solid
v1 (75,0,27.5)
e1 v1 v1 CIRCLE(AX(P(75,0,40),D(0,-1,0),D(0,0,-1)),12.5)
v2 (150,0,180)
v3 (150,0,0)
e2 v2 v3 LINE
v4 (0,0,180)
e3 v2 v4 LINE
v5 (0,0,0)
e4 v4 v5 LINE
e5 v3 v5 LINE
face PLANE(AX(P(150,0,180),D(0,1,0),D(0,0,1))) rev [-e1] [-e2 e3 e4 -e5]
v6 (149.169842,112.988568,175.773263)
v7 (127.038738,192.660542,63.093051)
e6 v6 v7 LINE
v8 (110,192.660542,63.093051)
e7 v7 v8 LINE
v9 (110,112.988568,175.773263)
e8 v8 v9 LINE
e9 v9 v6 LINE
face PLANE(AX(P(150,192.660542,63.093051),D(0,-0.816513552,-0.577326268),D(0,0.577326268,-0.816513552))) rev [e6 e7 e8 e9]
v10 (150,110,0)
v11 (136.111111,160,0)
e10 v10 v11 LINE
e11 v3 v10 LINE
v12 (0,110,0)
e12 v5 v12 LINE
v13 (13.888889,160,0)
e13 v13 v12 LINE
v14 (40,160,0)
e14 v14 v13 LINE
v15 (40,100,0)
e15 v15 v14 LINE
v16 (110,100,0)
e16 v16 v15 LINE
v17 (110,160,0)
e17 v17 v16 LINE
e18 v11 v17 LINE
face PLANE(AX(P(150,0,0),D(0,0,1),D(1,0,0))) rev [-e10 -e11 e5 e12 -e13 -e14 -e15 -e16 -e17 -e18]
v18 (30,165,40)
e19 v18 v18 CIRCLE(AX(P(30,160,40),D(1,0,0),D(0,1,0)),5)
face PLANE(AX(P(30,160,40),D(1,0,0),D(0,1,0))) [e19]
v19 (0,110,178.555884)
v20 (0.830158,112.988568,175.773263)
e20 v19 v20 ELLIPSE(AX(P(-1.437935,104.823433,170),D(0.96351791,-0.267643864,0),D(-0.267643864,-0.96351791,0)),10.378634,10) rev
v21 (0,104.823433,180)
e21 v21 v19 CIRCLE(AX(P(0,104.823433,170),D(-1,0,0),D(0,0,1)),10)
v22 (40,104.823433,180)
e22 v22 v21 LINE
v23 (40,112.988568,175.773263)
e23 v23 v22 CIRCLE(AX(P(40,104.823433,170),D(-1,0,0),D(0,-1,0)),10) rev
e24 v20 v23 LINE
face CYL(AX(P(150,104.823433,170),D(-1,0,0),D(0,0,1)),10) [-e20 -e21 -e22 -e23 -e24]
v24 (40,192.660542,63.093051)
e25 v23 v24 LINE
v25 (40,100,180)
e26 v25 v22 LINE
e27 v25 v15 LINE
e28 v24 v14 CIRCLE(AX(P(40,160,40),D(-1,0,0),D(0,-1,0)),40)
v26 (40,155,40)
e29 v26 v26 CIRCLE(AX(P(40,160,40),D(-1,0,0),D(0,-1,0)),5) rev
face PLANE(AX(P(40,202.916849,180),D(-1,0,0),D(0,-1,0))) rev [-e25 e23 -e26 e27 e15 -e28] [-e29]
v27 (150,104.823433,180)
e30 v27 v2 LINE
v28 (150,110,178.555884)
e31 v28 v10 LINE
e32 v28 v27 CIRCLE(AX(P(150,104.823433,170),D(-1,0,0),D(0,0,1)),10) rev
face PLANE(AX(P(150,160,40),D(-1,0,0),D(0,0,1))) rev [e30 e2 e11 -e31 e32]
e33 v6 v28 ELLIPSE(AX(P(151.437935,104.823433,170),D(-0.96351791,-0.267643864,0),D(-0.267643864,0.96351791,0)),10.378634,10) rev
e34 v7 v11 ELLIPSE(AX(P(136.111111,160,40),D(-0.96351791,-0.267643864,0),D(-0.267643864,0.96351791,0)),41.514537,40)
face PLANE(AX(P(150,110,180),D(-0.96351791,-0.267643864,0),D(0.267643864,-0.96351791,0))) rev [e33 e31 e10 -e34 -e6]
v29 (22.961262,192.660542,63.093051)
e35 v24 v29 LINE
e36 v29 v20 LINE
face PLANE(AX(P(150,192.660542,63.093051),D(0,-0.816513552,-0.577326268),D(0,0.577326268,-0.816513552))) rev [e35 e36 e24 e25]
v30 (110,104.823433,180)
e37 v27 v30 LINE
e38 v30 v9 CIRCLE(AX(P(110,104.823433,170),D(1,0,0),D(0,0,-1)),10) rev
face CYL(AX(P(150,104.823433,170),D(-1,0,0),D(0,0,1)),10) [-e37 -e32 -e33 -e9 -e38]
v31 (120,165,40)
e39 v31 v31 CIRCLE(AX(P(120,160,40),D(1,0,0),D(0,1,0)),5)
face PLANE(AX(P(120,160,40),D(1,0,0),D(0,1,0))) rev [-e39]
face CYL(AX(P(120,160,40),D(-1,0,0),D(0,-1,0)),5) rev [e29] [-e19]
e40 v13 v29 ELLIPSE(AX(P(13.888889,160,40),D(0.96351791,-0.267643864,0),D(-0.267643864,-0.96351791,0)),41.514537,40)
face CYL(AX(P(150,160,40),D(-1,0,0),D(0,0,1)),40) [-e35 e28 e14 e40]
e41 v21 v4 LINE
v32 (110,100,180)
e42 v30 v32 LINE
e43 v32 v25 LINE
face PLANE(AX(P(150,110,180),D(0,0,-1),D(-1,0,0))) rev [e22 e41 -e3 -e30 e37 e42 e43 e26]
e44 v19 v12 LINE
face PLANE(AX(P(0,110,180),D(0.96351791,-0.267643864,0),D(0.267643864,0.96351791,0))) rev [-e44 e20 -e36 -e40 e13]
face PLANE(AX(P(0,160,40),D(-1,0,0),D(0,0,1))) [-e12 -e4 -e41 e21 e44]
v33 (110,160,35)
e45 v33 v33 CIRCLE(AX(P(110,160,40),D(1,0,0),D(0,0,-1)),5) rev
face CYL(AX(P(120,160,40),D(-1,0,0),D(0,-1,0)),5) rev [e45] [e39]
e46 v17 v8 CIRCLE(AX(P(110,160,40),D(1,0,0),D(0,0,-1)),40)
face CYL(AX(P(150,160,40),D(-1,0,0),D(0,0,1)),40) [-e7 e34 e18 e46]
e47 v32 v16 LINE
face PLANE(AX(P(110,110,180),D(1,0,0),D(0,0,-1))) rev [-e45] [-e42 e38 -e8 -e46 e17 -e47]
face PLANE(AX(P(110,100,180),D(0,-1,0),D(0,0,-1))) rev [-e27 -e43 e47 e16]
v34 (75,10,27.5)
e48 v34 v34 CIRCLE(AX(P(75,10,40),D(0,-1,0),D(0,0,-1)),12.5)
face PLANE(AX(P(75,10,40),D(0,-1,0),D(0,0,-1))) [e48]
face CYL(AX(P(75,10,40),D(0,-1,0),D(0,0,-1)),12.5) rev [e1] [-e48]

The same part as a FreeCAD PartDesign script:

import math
import FreeCAD as App
import Part
import Sketcher
from FreeCAD import Vector


def edges_at(feature, points):
    """Names of the edges that pass closest to the given points."""
    edges = feature.Shape.Edges
    near = lambda p: min(range(len(edges)), key=lambda i: edges[i].distToShape(Part.Vertex(*p))[0])
    return sorted({f"Edge{near(p) + 1}" for p in points})


def add_polygon(sketch, points):
    """Adds a closed chain of lines whose ends are joined by coincident constraints."""
    first, n = sketch.GeometryCount, len(points)
    for a, b in zip(points, points[1:] + points[:1]):
        sketch.addGeometry(Part.LineSegment(App.Vector(*a, 0), App.Vector(*b, 0)), False)
    for i in range(n):
        sketch.addConstraint(Sketcher.Constraint("Coincident", first + i, 2, first + (i + 1) % n, 1))

doc = App.newDocument("Part")
params = doc.addObject("Spreadsheet::Sheet", "Params")
for row, (alias, value) in enumerate([
    ("sketch1_radius", "40 mm"),
    ("sketch1_width", "160 mm"),
    ("sketch1_width2", "110 mm"),
    ("sketch1_height", "180 mm"),
    ("pad1_length", "150 mm"),
    ("fillet_radius", "10 mm"),
    ("sketch2_width", "70 mm"),
    ("sketch3_diameter", "25 mm"),
    ("pocket2_length", "10 mm"),
    ("sketch4_diameter", "10 mm"),
    ("pocket3_length", "80 mm"),
    ("pocket3_length2", "10 mm"),
], start=1):
    params.set(f"A{row}", alias)
    params.set(f"B{row}", "=" + value)
    params.setAlias(f"B{row}", alias)

body = doc.addObject("PartDesign::Body", "Body")

# Sketch on YZ plane
sketch1 = doc.addObject("Sketcher::SketchObject", "Sketch")
body.addObject(sketch1)
sketch1.AttachmentSupport = (doc.YZ_Plane, [""])
sketch1.MapMode = "FlatFace"
sketch1.addGeometry([
    Part.LineSegment(Vector(0, 0, 0), Vector(160, 0, 0)),  # 0
    Part.ArcOfCircle(Part.Circle(Vector(160, 40, 0), Vector(0, 0, 1), 40), math.radians(-90), math.radians(35)),  # 1
    Part.LineSegment(Vector(193, 63, 0), Vector(110, 180, 0)),  # 2
    Part.LineSegment(Vector(110, 180, 0), Vector(0, 180, 0)),  # 3
    Part.LineSegment(Vector(0, 180, 0), Vector(0, 0, 0)),  # 4
], False)
sketch1.addConstraint([
    Sketcher.Constraint("Tangent", 0, 2, 1, 1),
    Sketcher.Constraint("Tangent", 1, 2, 2, 1),
    Sketcher.Constraint("Coincident", 2, 2, 3, 1),
    Sketcher.Constraint("Coincident", 3, 2, 4, 1),
    Sketcher.Constraint("Coincident", 4, 2, 0, 1),
    Sketcher.Constraint("Horizontal", 0),
    Sketcher.Constraint("Horizontal", 3),
    Sketcher.Constraint("Vertical", 4),
    Sketcher.Constraint("Coincident", 4, 2, -1, 1),
    Sketcher.Constraint("Radius", 1, 40.0),
    Sketcher.Constraint("DistanceX", 0, 1, 0, 2, 160.0),
    Sketcher.Constraint("DistanceX", 3, 2, 3, 1, 110.0),
    Sketcher.Constraint("DistanceY", 4, 2, 4, 1, 180.0),
])
sketch1.setExpression("Constraints[9]", "Params.sketch1_radius")
sketch1.setExpression("Constraints[10]", "Params.sketch1_width")
sketch1.setExpression("Constraints[11]", "Params.sketch1_width2")
sketch1.setExpression("Constraints[12]", "Params.sketch1_height")
pad1 = doc.addObject("PartDesign::Pad", "Pad")
body.addObject(pad1)
pad1.Profile = sketch1
pad1.setExpression("Length", "Params.pad1_length")
doc.recompute()

fillet = doc.addObject("PartDesign::Fillet", "Fillet")
body.addObject(fillet)
fillet.Base = (pad1, edges_at(pad1, [(75, 110, 180)]))
fillet.setExpression("Radius", "Params.fillet_radius")

# Sketch on XY plane
sketch2 = doc.addObject("Sketcher::SketchObject", "Sketch001")
body.addObject(sketch2)
sketch2.AttachmentSupport = (doc.XY_Plane, [""])
sketch2.MapMode = "FlatFace"
add_polygon(sketch2, [(150, 110), (125, 200), (125, 212), (176, 212), (176, 111)])  # lines 0-4
add_polygon(sketch2, [(110, 203), (110, 100), (40, 100), (40, 203)])  # lines 5-8
add_polygon(sketch2, [(0, 110), (-26, 111), (-26, 212), (25, 212), (25, 200)])  # lines 9-13
sketch2.addConstraint([
    Sketcher.Constraint("Vertical", 1),
    Sketcher.Constraint("Horizontal", 2),
    Sketcher.Constraint("Vertical", 3),
    Sketcher.Constraint("Vertical", 5),
    Sketcher.Constraint("Horizontal", 6),
    Sketcher.Constraint("Vertical", 7),
    Sketcher.Constraint("Horizontal", 8),
    Sketcher.Constraint("Vertical", 10),
    Sketcher.Constraint("Horizontal", 11),
    Sketcher.Constraint("Vertical", 12),
    Sketcher.Constraint("PointOnObject", 13, 2, -2),
    Sketcher.Constraint("Horizontal", 3, 2, 9, 2),
    Sketcher.Constraint("Horizontal", 2, 2, 10, 2),
    Sketcher.Constraint("Horizontal", 0, 2, 12, 2),
    Sketcher.Constraint("Horizontal", 4, 2, 13, 2),
    Sketcher.Constraint("Equal", 2, 11),
    Sketcher.Constraint("Equal", 4, 9),
    Sketcher.Constraint("DistanceX", 6, 2, 6, 1, 70.0),
    Sketcher.Constraint("DistanceX", -1, 1, 0, 2, 125.0),
    Sketcher.Constraint("DistanceY", -1, 1, 0, 2, 200.0),
    Sketcher.Constraint("DistanceX", -1, 1, 4, 2, 150.0),
    Sketcher.Constraint("DistanceY", -1, 1, 4, 2, 110.0),
    Sketcher.Constraint("DistanceX", -1, 1, 5, 2, 110.0),
    Sketcher.Constraint("DistanceY", -1, 1, 5, 2, 100.0),
    Sketcher.Constraint("DistanceX", 2, 1, 2, 2, 51.07703),
    Sketcher.Constraint("DistanceY", 1, 1, 1, 2, 12.317242),
    Sketcher.Constraint("DistanceY", 5, 2, 5, 1, 102.916849),
    Sketcher.Constraint("DistanceY", 3, 2, 3, 1, 100.910008),
])
sketch2.setExpression("Constraints[31]", "Params.sketch2_width")
pocket1 = doc.addObject("PartDesign::Pocket", "Pocket")
body.addObject(pocket1)
pocket1.Profile = sketch2
pocket1.Type = "ThroughAll"
pocket1.Reversed = True

# Sketch on XZ plane
sketch3 = doc.addObject("Sketcher::SketchObject", "Sketch002")
body.addObject(sketch3)
sketch3.AttachmentSupport = (doc.XZ_Plane, [""])
sketch3.MapMode = "FlatFace"
sketch3.addGeometry(Part.Circle(Vector(75, 40, 0), Vector(0, 0, 1), 12), False)
sketch3.addConstraint([
    Sketcher.Constraint("Diameter", 0, 25.0),
    Sketcher.Constraint("DistanceX", -1, 1, 0, 3, 75.0),
    Sketcher.Constraint("DistanceY", -1, 1, 0, 3, 40.0),
])
sketch3.setExpression("Constraints[0]", "Params.sketch3_diameter")
pocket2 = doc.addObject("PartDesign::Pocket", "Pocket001")
body.addObject(pocket2)
pocket2.Profile = sketch3
pocket2.setExpression("Length", "Params.pocket2_length")

# Sketch on YZ plane
sketch4 = doc.addObject("Sketcher::SketchObject", "Sketch003")
body.addObject(sketch4)
sketch4.AttachmentSupport = (doc.YZ_Plane, [""])
sketch4.MapMode = "FlatFace"
sketch4.AttachmentOffset = App.Placement(Vector(0, 0, 40), App.Rotation())
sketch4.addGeometry(Part.Circle(Vector(160, 40, 0), Vector(0, 0, 1), 5), False)
sketch4.addConstraint([
    Sketcher.Constraint("Diameter", 0, 10.0),
    Sketcher.Constraint("DistanceX", -1, 1, 0, 3, 160.0),
    Sketcher.Constraint("DistanceY", -1, 1, 0, 3, 40.0),
])
sketch4.setExpression("Constraints[0]", "Params.sketch4_diameter")
pocket3 = doc.addObject("PartDesign::Pocket", "Pocket002")
body.addObject(pocket3)
pocket3.Profile = sketch4
pocket3.Type = "TwoLengths"
pocket3.setExpression("Length", "Params.pocket3_length")
pocket3.setExpression("Length2", "Params.pocket3_length2")
pocket3.Reversed = True

doc.recompute()
